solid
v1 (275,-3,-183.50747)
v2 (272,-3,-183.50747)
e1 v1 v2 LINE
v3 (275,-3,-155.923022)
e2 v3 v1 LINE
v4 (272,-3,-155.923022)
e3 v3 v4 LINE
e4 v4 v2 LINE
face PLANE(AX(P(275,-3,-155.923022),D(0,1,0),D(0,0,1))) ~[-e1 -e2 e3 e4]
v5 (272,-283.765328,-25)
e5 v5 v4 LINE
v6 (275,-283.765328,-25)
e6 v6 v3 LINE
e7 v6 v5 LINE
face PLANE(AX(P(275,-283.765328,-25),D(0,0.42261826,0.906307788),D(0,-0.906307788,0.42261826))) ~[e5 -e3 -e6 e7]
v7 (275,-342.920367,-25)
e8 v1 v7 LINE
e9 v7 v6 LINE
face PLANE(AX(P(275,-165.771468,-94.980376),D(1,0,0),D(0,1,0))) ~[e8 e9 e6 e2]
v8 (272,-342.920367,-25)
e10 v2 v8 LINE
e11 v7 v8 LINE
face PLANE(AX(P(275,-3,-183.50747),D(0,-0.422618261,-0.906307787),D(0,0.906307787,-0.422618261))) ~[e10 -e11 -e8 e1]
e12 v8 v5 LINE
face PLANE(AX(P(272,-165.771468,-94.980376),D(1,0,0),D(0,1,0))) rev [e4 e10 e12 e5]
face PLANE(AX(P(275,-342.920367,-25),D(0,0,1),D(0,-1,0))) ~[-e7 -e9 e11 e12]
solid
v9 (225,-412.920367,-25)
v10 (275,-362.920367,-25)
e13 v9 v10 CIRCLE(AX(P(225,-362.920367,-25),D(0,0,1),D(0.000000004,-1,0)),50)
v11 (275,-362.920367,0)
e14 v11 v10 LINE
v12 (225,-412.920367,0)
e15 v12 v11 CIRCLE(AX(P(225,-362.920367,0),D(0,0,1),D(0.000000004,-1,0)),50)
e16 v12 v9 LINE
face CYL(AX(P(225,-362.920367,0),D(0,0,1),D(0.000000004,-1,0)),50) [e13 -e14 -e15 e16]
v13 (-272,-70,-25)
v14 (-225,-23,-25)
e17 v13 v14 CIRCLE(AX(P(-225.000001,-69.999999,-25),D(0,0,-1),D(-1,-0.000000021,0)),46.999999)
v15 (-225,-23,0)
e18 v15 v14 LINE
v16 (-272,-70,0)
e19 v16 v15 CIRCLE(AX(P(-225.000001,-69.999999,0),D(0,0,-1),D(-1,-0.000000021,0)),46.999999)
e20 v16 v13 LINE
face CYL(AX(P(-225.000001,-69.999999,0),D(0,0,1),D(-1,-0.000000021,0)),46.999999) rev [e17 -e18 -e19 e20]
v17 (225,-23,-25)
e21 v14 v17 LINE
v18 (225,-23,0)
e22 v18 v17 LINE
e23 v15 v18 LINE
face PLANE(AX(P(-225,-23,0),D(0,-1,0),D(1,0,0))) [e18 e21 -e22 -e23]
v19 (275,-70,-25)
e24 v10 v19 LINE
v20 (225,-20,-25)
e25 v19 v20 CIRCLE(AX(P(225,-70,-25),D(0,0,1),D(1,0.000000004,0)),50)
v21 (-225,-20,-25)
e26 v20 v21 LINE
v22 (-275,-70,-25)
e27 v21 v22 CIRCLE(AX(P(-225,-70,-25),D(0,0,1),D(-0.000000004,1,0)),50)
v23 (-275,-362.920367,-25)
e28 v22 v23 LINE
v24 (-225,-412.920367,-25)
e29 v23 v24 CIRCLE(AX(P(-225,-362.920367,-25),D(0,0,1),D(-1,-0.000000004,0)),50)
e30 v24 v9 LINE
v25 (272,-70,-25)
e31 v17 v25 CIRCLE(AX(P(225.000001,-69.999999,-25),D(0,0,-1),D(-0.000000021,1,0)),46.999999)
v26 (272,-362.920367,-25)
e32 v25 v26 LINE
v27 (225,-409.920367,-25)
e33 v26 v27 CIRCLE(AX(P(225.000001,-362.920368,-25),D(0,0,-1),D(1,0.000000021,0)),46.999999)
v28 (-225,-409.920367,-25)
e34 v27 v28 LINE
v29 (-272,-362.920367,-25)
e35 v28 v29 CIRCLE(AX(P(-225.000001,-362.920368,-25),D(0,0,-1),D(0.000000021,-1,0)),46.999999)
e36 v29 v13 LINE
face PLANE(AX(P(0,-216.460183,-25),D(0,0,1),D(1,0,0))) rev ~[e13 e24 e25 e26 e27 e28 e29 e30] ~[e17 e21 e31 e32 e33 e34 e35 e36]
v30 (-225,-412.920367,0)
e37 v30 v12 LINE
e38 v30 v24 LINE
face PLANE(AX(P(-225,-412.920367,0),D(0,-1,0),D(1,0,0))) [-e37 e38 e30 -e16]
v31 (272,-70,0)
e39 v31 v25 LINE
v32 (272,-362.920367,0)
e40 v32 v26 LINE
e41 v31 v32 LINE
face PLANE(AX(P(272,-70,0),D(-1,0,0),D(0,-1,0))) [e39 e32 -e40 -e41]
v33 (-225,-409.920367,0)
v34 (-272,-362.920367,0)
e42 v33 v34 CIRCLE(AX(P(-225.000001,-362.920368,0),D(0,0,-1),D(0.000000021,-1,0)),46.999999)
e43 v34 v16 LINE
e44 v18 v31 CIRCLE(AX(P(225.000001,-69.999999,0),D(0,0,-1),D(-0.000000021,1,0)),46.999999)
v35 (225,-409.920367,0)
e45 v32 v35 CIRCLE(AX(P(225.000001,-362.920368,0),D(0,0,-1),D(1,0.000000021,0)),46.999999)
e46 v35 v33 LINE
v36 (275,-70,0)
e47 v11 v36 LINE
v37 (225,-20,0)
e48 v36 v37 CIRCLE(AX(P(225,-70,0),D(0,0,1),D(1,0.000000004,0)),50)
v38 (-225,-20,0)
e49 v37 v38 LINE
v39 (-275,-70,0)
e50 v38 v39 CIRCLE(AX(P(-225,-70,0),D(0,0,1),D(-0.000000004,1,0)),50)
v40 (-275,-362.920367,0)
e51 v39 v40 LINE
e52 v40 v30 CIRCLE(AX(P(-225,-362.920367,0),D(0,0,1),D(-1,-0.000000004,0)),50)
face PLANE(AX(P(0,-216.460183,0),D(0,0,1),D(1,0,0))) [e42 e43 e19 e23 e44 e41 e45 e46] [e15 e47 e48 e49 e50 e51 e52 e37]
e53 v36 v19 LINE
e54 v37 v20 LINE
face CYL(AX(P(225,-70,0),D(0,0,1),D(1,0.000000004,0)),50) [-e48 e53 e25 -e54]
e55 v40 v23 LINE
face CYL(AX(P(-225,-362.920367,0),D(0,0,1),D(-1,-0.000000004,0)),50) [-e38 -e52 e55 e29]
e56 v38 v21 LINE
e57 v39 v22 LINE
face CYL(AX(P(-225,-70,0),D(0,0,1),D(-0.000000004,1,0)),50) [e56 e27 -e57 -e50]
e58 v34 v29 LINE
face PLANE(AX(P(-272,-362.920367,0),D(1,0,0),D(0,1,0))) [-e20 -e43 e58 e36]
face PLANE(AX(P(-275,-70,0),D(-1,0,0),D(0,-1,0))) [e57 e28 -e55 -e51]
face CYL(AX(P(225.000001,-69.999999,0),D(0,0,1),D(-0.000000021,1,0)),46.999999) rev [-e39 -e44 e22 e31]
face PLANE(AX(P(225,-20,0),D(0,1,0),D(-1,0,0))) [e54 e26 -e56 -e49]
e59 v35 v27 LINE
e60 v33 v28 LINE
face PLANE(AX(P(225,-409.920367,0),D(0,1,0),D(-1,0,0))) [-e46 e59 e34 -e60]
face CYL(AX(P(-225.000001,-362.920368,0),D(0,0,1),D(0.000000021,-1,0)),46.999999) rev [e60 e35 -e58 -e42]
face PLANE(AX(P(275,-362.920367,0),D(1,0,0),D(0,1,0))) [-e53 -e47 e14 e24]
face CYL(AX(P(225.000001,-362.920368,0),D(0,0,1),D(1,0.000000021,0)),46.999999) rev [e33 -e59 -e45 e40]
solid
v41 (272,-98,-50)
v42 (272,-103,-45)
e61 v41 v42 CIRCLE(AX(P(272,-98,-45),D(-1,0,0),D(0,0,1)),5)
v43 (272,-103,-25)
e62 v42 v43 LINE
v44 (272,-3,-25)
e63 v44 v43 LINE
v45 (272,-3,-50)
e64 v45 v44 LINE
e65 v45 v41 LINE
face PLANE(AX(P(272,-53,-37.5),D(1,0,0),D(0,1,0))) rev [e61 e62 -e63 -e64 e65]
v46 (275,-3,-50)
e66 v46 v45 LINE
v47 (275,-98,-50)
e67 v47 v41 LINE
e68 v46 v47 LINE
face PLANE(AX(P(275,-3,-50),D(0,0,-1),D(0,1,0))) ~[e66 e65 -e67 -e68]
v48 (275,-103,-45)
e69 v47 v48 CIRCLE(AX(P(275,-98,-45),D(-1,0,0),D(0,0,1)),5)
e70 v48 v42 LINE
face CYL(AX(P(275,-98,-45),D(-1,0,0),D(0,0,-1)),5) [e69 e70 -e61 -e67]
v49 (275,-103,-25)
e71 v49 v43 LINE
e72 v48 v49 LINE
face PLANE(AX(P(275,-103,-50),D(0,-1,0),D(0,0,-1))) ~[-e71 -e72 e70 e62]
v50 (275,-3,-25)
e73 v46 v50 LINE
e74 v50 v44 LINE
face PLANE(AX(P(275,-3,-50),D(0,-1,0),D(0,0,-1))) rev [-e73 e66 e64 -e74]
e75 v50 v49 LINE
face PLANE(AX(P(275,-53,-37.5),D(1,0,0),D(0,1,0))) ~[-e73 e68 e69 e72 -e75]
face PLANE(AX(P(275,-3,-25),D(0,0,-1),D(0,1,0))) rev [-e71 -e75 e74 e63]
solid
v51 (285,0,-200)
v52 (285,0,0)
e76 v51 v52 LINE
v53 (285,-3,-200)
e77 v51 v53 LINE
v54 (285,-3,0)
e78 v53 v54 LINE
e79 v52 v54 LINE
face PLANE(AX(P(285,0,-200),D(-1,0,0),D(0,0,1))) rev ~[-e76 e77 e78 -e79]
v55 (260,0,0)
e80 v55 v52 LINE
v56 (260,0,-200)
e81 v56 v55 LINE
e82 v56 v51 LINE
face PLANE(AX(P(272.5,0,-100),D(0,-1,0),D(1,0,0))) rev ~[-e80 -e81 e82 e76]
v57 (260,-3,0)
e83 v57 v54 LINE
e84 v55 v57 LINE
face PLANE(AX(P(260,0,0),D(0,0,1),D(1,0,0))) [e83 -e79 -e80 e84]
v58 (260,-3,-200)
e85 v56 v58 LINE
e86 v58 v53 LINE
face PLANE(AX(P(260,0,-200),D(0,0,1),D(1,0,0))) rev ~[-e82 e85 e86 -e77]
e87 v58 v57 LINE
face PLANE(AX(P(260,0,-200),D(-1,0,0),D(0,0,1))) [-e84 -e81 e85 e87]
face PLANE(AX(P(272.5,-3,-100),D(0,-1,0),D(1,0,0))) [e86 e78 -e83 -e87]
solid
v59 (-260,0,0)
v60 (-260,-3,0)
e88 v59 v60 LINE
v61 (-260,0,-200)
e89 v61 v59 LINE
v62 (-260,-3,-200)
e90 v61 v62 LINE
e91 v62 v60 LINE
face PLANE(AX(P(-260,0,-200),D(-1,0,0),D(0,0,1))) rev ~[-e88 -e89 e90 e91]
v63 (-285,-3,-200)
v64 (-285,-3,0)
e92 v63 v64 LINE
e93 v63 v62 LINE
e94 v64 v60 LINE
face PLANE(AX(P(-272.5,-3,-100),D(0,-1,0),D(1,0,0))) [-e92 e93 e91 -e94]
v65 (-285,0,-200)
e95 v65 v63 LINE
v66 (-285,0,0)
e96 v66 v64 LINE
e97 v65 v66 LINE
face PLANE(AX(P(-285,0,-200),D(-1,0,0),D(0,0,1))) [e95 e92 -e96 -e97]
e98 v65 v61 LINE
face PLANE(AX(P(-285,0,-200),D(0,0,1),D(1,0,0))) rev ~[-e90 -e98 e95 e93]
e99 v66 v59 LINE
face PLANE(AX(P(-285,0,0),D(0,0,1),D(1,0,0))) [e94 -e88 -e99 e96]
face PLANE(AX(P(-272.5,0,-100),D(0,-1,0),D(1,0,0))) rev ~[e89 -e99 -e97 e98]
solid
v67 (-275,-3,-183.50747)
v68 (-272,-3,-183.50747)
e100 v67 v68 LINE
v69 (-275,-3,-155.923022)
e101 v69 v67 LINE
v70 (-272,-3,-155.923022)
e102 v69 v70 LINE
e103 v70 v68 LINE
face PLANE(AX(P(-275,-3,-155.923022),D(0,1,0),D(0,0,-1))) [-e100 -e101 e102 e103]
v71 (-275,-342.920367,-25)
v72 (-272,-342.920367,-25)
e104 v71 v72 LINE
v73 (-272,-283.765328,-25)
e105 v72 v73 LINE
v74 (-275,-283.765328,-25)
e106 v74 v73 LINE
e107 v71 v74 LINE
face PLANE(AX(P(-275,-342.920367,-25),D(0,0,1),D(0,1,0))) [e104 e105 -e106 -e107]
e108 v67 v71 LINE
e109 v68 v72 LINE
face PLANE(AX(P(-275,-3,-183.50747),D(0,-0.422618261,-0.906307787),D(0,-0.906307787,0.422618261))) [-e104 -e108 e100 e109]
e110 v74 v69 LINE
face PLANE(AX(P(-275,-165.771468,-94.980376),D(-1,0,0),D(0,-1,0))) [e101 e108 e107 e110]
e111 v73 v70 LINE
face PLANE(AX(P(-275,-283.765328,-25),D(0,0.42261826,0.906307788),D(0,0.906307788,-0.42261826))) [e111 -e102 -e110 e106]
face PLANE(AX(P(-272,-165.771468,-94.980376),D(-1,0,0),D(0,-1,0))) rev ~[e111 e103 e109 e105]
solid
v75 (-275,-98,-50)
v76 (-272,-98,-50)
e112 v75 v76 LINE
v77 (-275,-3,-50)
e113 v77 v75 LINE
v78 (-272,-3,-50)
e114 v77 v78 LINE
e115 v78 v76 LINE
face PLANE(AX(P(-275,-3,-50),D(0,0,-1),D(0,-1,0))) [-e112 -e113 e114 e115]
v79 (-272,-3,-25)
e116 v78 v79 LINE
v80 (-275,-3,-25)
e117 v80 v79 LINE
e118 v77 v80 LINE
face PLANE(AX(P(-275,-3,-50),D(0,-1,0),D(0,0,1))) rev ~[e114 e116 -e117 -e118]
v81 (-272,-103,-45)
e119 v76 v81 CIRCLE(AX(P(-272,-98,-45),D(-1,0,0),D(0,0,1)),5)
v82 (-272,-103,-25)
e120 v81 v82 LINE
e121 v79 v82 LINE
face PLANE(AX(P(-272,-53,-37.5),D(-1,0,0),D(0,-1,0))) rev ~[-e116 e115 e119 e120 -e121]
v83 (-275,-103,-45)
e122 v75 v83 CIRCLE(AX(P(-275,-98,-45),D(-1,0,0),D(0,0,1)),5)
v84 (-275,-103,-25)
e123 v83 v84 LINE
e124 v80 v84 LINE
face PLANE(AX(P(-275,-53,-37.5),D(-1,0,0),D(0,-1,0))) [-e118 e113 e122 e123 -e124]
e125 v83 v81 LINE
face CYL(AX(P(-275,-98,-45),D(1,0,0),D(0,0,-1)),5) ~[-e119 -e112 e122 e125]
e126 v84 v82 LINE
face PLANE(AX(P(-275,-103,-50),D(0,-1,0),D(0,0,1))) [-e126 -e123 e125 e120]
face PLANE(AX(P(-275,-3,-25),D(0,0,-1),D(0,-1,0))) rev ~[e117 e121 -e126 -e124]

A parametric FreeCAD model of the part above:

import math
import FreeCAD as App
import Part
import Sketcher
Q = App.Units.Quantity


def edges_at(feature, points):
    """Names of the edges that pass closest to the given points."""
    edges = feature.Shape.Edges
    near = lambda p: min(range(len(edges)), key=lambda i: edges[i].distToShape(Part.Vertex(*p))[0])
    return sorted({f"Edge{near(p) + 1}" for p in points})


def add_polygon(sketch, points):
    """Adds a closed chain of lines whose ends are joined by coincident constraints."""
    first, n = sketch.GeometryCount, len(points)
    for a, b in zip(points, points[1:] + points[:1]):
        sketch.addGeometry(Part.LineSegment(App.Vector(*a, 0), App.Vector(*b, 0)), False)
    for i in range(n):
        sketch.addConstraint(Sketcher.Constraint("Coincident", first + i, 2, first + (i + 1) % n, 1))

doc = App.newDocument("Part")
body = doc.addObject("PartDesign::Body", "Body")

# Sketch on XY plane
sketch1 = body.newObject("Sketcher::SketchObject", "Sketch")
sketch1.AttachmentSupport = (doc.getObject("XY_Plane"), [""])
sketch1.MapMode = "FlatFace"
sketch1.addGeometry([
    Part.LineSegment(App.Vector(225, -20, 0), App.Vector(-225, -20, 0)),  # 0
    Part.ArcOfCircle(Part.Circle(App.Vector(-225, -70, 0), App.Vector(0, 0, 1), 50), math.radians(90), math.radians(180)),  # 1
    Part.LineSegment(App.Vector(-275, -70, 0), App.Vector(-275, -362.920367, 0)),  # 2
    Part.ArcOfCircle(Part.Circle(App.Vector(-225, -362.920367, 0), App.Vector(0, 0, 1), 50), math.radians(-180), math.radians(-90)),  # 3
    Part.LineSegment(App.Vector(-225, -412.920367, 0), App.Vector(225, -412.920367, 0)),  # 4
    Part.ArcOfCircle(Part.Circle(App.Vector(225, -362.920367, 0), App.Vector(0, 0, 1), 50), math.radians(-90), math.radians(0)),  # 5
    Part.LineSegment(App.Vector(275, -362.920367, 0), App.Vector(275, -70, 0)),  # 6
    Part.ArcOfCircle(Part.Circle(App.Vector(225, -70, 0), App.Vector(0, 0, 1), 50), math.radians(0), math.radians(90)),  # 7
    Part.LineSegment(App.Vector(-272, -362.920367, 0), App.Vector(-272, -70, 0)),  # 8
    Part.ArcOfCircle(Part.Circle(App.Vector(-225.000001, -69.999999, 0), App.Vector(0, 0, 1), 46.999999), math.radians(89.999999), math.radians(180.000001)),  # 9
    Part.LineSegment(App.Vector(-225, -23, 0), App.Vector(225, -23, 0)),  # 10
    Part.ArcOfCircle(Part.Circle(App.Vector(225.000001, -69.999999, 0), App.Vector(0, 0, 1), 46.999999), math.radians(-0.000001), math.radians(90.000001)),  # 11
    Part.LineSegment(App.Vector(272, -70, 0), App.Vector(272, -362.920367, 0)),  # 12
    Part.ArcOfCircle(Part.Circle(App.Vector(225.000001, -362.920368, 0), App.Vector(0, 0, 1), 46.999999), math.radians(-90.000001), math.radians(0.000001)),  # 13
    Part.LineSegment(App.Vector(225, -409.920367, 0), App.Vector(-225, -409.920367, 0)),  # 14
    Part.ArcOfCircle(Part.Circle(App.Vector(-225.000001, -362.920368, 0), App.Vector(0, 0, 1), 46.999999), math.radians(179.999999), math.radians(270.000001)),  # 15
], False)
sketch1.addConstraint([
    Sketcher.Constraint("Tangent", 0, 2, 1, 1),
    Sketcher.Constraint("Tangent", 1, 2, 2, 1),
    Sketcher.Constraint("Tangent", 2, 2, 3, 1),
    Sketcher.Constraint("Tangent", 3, 2, 4, 1),
    Sketcher.Constraint("Tangent", 4, 2, 5, 1),
    Sketcher.Constraint("Tangent", 5, 2, 6, 1),
    Sketcher.Constraint("Tangent", 6, 2, 7, 1),
    Sketcher.Constraint("Tangent", 7, 2, 0, 1),
    Sketcher.Constraint("Tangent", 8, 2, 9, 2),
    Sketcher.Constraint("Tangent", 9, 1, 10, 1),
    Sketcher.Constraint("Tangent", 10, 2, 11, 2),
    Sketcher.Constraint("Tangent", 11, 1, 12, 1),
    Sketcher.Constraint("Tangent", 12, 2, 13, 2),
    Sketcher.Constraint("Tangent", 13, 1, 14, 1),
    Sketcher.Constraint("Tangent", 14, 2, 15, 2),
    Sketcher.Constraint("Tangent", 15, 1, 8, 1),
    Sketcher.Constraint("Horizontal", 0),
    Sketcher.Constraint("Vertical", 2),
    Sketcher.Constraint("Horizontal", 4),
    Sketcher.Constraint("Vertical", 6),
    Sketcher.Constraint("Vertical", 8),
    Sketcher.Constraint("Horizontal", 10),
    Sketcher.Constraint("Vertical", 12),
    Sketcher.Constraint("Horizontal", 14),
    Sketcher.Constraint("Coincident", 9, 3, 1, 3),
    Sketcher.Constraint("Coincident", 11, 3, 7, 3),
    Sketcher.Constraint("Coincident", 13, 3, 5, 3),
    Sketcher.Constraint("Equal", 1, 3),
    Sketcher.Constraint("Equal", 3, 5),
    Sketcher.Constraint("Equal", 5, 7),
    Sketcher.Constraint("Equal", 13, 15),
    Sketcher.Constraint("Radius", 1, Q("50 mm")),
    Sketcher.Constraint("Radius", 9, Q("46.999999 mm")),
    Sketcher.Constraint("DistanceX", 0, 2, 0, 1, Q("450 mm")),
    Sketcher.Constraint("DistanceX", 1, 3, -1, 1, Q("225 mm")),
    Sketcher.Constraint("DistanceY", 1, 3, -1, 1, Q("70 mm")),
    Sketcher.Constraint("DistanceY", 2, 2, 2, 1, Q("292.920367 mm")),
])
pad1 = body.newObject("PartDesign::Pad", "Pad")
pad1.Profile = sketch1
pad1.Length = 25
pad1.Reversed = True
body2 = doc.addObject("PartDesign::Body", "Body001")
body2.AllowCompound = True

# Sketch on XZ plane
sketch2 = body2.newObject("Sketcher::SketchObject", "Sketch001")
sketch2.AttachmentSupport = (doc.getObject("XZ_Plane001"), [""])
sketch2.MapMode = "FlatFace"
add_polygon(sketch2, [(-285, 0), (-285, -200), (-260, -200), (-260, 0)])  # lines 0-3
add_polygon(sketch2, [(260, 0), (260, -200), (285, -200), (285, 0)])  # lines 4-7
sketch2.addConstraint([
    Sketcher.Constraint("Vertical", 0),
    Sketcher.Constraint("Horizontal", 1),
    Sketcher.Constraint("Vertical", 2),
    Sketcher.Constraint("Horizontal", 3),
    Sketcher.Constraint("Vertical", 4),
    Sketcher.Constraint("Horizontal", 5),
    Sketcher.Constraint("Vertical", 6),
    Sketcher.Constraint("Horizontal", 7),
    Sketcher.Constraint("Symmetric", 3, 2, 6, 2, -1, 1),
    Sketcher.Constraint("Symmetric", 1, 2, 4, 2, -2),
    Sketcher.Constraint("PointOnObject", 2, 2, -1),
    Sketcher.Constraint("DistanceX", 1, 1, 1, 2, Q("25 mm")),
    Sketcher.Constraint("DistanceY", 0, 2, 0, 1, Q("200 mm")),
    Sketcher.Constraint("DistanceX", 0, 2, -1, 1, Q("285 mm")),
])
pad2 = body2.newObject("PartDesign::Pad", "Pad001")
pad2.Profile = sketch2
pad2.Length = 3
body3 = doc.addObject("PartDesign::Body", "Body002")
body3.AllowCompound = True

# Sketch on YZ plane
sketch3 = body3.newObject("Sketcher::SketchObject", "Sketch002")
sketch3.AttachmentSupport = (doc.getObject("YZ_Plane002"), [""])
sketch3.MapMode = "FlatFace"
sketch3.AttachmentOffset = App.Placement(App.Vector(0, 0, -275), App.Rotation())
add_polygon(sketch3, [(-3, -25), (-3, -50), (-103, -50), (-103, -25)])  # lines 0-3
add_polygon(sketch3, [(-283.765328, -25), (-3, -155.923022), (-3, -183.50747), (-342.920367, -25)])  # lines 4-7
sketch3.addConstraint([
    Sketcher.Constraint("Vertical", 0),
    Sketcher.Constraint("Horizontal", 1),
    Sketcher.Constraint("Vertical", 2),
    Sketcher.Constraint("Horizontal", 3),
    Sketcher.Constraint("Vertical", 5),
    Sketcher.Constraint("Horizontal", 7),
    Sketcher.Constraint("Parallel", 4, 6),
    Sketcher.Constraint("Horizontal", 3, 2, 6, 2),
    Sketcher.Constraint("Vertical", 3, 2, 4, 2),
    Sketcher.Constraint("DistanceX", 1, 2, 1, 1, Q("100 mm")),
    Sketcher.Constraint("DistanceY", 0, 2, 0, 1, Q("25 mm")),
    Sketcher.Constraint("Angle", 4, Q("-25 deg")),
    Sketcher.Constraint("DistanceX", 0, 2, -1, 1, Q("3 mm")),
    Sketcher.Constraint("DistanceY", 0, 2, -1, 1, Q("50 mm")),
    Sketcher.Constraint("DistanceX", 7, 1, 7, 2, Q("59.155039 mm")),
    Sketcher.Constraint("DistanceY", 4, 2, -1, 1, Q("155.923022 mm")),
])
pad3 = body3.newObject("PartDesign::Pad", "Pad002")
pad3.Profile = sketch3
pad3.Length = 3
doc.recompute()

fillet = body3.newObject("PartDesign::Fillet", "Fillet")
fillet.Base = (pad3, edges_at(pad3, [(-273.5, -103, -50)]))
fillet.Radius = 5
body4 = doc.addObject("PartDesign::Body", "Body003")
body4.AllowCompound = True
doc.recompute()

mirroring = doc.addObject("Part::Mirroring", "Mirroring")
mirroring.Source = body3
mirroring.Base = App.Vector(0, 0, 0)
mirroring.Normal = App.Vector(1, 0, 0)
body4.BaseFeature = mirroring
doc.recompute()
mirroring.Visibility = False

doc.recompute()
